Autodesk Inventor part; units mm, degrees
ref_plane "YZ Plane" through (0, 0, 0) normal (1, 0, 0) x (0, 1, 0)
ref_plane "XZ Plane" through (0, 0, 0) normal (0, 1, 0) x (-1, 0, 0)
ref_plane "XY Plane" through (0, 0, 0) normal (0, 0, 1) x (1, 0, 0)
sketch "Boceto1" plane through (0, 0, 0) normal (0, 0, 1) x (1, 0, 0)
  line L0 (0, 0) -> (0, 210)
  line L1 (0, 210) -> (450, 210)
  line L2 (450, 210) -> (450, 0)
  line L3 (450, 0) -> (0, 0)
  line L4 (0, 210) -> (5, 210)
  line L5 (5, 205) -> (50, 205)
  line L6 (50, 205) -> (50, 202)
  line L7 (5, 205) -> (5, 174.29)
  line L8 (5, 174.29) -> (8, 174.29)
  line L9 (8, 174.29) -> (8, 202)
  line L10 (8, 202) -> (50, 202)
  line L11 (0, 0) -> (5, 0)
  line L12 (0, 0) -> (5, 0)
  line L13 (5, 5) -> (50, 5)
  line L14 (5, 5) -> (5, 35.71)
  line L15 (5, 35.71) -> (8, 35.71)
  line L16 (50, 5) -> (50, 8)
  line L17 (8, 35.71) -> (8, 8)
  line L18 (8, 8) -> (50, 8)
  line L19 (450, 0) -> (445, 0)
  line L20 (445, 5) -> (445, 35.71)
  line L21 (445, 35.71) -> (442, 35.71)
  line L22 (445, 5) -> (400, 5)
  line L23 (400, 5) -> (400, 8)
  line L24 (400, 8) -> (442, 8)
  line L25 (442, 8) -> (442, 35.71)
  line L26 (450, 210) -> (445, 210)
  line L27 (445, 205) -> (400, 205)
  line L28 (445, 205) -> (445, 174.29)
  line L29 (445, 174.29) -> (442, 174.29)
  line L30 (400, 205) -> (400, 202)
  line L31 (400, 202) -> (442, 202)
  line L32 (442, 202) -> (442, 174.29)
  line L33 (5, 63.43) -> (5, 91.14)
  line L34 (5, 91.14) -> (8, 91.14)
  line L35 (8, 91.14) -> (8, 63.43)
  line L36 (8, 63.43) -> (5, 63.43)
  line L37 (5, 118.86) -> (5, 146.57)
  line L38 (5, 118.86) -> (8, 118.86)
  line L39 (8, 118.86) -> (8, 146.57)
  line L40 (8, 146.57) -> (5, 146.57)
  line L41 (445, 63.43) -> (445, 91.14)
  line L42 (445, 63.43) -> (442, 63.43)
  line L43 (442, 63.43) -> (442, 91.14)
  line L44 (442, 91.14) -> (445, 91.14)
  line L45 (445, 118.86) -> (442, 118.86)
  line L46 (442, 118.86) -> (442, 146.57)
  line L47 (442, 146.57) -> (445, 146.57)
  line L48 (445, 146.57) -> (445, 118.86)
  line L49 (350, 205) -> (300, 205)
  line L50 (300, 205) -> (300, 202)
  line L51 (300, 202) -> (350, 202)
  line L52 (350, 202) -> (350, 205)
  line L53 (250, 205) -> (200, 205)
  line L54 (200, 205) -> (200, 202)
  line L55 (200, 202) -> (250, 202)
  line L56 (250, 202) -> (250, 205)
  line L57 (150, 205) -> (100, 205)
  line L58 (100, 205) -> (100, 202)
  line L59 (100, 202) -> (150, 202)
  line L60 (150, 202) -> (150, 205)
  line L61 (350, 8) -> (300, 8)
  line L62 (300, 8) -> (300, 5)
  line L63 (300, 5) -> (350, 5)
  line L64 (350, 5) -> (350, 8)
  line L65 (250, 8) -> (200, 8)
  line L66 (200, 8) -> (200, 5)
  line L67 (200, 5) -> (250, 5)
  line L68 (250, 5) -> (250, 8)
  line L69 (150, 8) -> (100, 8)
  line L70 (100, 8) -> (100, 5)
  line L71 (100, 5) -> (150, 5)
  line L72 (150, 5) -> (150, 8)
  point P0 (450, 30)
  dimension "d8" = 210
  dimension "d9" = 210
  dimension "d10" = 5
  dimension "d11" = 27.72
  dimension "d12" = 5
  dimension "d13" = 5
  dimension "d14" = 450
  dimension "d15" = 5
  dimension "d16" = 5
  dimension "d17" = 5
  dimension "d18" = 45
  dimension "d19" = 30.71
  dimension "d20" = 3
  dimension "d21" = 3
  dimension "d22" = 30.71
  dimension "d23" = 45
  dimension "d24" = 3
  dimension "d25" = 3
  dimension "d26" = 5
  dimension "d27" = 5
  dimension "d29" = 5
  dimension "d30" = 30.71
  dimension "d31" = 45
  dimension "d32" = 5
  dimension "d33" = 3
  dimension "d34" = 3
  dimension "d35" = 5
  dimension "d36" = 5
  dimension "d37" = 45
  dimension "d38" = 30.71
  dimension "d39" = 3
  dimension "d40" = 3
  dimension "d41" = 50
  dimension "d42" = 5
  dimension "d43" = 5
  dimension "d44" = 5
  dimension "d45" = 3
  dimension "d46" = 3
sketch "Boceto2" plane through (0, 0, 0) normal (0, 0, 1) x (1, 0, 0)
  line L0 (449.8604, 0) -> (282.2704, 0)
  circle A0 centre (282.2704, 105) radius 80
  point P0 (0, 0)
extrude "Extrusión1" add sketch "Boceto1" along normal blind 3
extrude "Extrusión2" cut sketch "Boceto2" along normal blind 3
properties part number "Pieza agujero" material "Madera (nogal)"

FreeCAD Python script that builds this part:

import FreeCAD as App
import Part
import Sketcher
Q = App.Units.Quantity

doc = App.newDocument("Part")
body = doc.addObject("PartDesign::Body", "Body")

# Sketch on XY plane
sketch1 = doc.addObject("Sketcher::SketchObject", "Sketch")
body.addObject(sketch1)
sketch1.AttachmentSupport = (doc.XY_Plane, [""])
sketch1.MapMode = "FlatFace"
sketch1.addGeometry(Part.LineSegment(App.Vector(0, 210, 0), App.Vector(0, 0, 0)), False)
sketch1.addGeometry(Part.LineSegment(App.Vector(0, 0, 0), App.Vector(450, 0, 0)), False)
sketch1.addGeometry(Part.LineSegment(App.Vector(450, 0, 0), App.Vector(450, 210, 0)), False)
sketch1.addGeometry(Part.LineSegment(App.Vector(450, 210, 0), App.Vector(0, 210, 0)), False)
sketch1.addGeometry(Part.LineSegment(App.Vector(50, 5, 0), App.Vector(5, 5, 0)), False)
sketch1.addGeometry(Part.LineSegment(App.Vector(5, 5, 0), App.Vector(5, 35.7, 0)), False)
sketch1.addGeometry(Part.LineSegment(App.Vector(5, 35.7, 0), App.Vector(8, 35.7, 0)), False)
sketch1.addGeometry(Part.LineSegment(App.Vector(8, 35.7, 0), App.Vector(8, 8, 0)), False)
sketch1.addGeometry(Part.LineSegment(App.Vector(8, 8, 0), App.Vector(50, 8, 0)), False)
sketch1.addGeometry(Part.LineSegment(App.Vector(50, 8, 0), App.Vector(50, 5, 0)), False)
sketch1.addGeometry(Part.LineSegment(App.Vector(100, 8, 0), App.Vector(150, 8, 0)), False)
sketch1.addGeometry(Part.LineSegment(App.Vector(150, 8, 0), App.Vector(150, 5, 0)), False)
sketch1.addGeometry(Part.LineSegment(App.Vector(150, 5, 0), App.Vector(100, 5, 0)), False)
sketch1.addGeometry(Part.LineSegment(App.Vector(100, 5, 0), App.Vector(100, 8, 0)), False)
sketch1.addGeometry(Part.LineSegment(App.Vector(8, 63.4, 0), App.Vector(5, 63.4, 0)), False)
sketch1.addGeometry(Part.LineSegment(App.Vector(5, 63.4, 0), App.Vector(5, 91.1, 0)), False)
sketch1.addGeometry(Part.LineSegment(App.Vector(5, 91.1, 0), App.Vector(8, 91.1, 0)), False)
sketch1.addGeometry(Part.LineSegment(App.Vector(8, 91.1, 0), App.Vector(8, 63.4, 0)), False)
sketch1.addGeometry(Part.LineSegment(App.Vector(200, 8, 0), App.Vector(250, 8, 0)), False)
sketch1.addGeometry(Part.LineSegment(App.Vector(250, 8, 0), App.Vector(250, 5, 0)), False)
sketch1.addGeometry(Part.LineSegment(App.Vector(250, 5, 0), App.Vector(200, 5, 0)), False)
sketch1.addGeometry(Part.LineSegment(App.Vector(200, 5, 0), App.Vector(200, 8, 0)), False)
sketch1.addGeometry(Part.LineSegment(App.Vector(300, 8, 0), App.Vector(350, 8, 0)), False)
sketch1.addGeometry(Part.LineSegment(App.Vector(350, 8, 0), App.Vector(350, 5, 0)), False)
sketch1.addGeometry(Part.LineSegment(App.Vector(350, 5, 0), App.Vector(300, 5, 0)), False)
sketch1.addGeometry(Part.LineSegment(App.Vector(300, 5, 0), App.Vector(300, 8, 0)), False)
sketch1.addGeometry(Part.LineSegment(App.Vector(445, 35.7, 0), App.Vector(445, 5, 0)), False)
sketch1.addGeometry(Part.LineSegment(App.Vector(445, 5, 0), App.Vector(400, 5, 0)), False)
sketch1.addGeometry(Part.LineSegment(App.Vector(400, 5, 0), App.Vector(400, 8, 0)), False)
sketch1.addGeometry(Part.LineSegment(App.Vector(400, 8, 0), App.Vector(442, 8, 0)), False)
sketch1.addGeometry(Part.LineSegment(App.Vector(442, 8, 0), App.Vector(442, 35.7, 0)), False)
sketch1.addGeometry(Part.LineSegment(App.Vector(442, 35.7, 0), App.Vector(445, 35.7, 0)), False)
sketch1.addGeometry(Part.LineSegment(App.Vector(445, 91.1, 0), App.Vector(445, 63.4, 0)), False)
sketch1.addGeometry(Part.LineSegment(App.Vector(445, 63.4, 0), App.Vector(442, 63.4, 0)), False)
sketch1.addGeometry(Part.LineSegment(App.Vector(442, 63.4, 0), App.Vector(442, 91.1, 0)), False)
sketch1.addGeometry(Part.LineSegment(App.Vector(442, 91.1, 0), App.Vector(445, 91.1, 0)), False)
sketch1.addGeometry(Part.LineSegment(App.Vector(8, 118.9, 0), App.Vector(5, 118.9, 0)), False)
sketch1.addGeometry(Part.LineSegment(App.Vector(5, 118.9, 0), App.Vector(5, 146.6, 0)), False)
sketch1.addGeometry(Part.LineSegment(App.Vector(5, 146.6, 0), App.Vector(8, 146.6, 0)), False)
sketch1.addGeometry(Part.LineSegment(App.Vector(8, 146.6, 0), App.Vector(8, 118.9, 0)), False)
sketch1.addGeometry(Part.LineSegment(App.Vector(5, 174.3, 0), App.Vector(5, 205, 0)), False)
sketch1.addGeometry(Part.LineSegment(App.Vector(5, 205, 0), App.Vector(50, 205, 0)), False)
sketch1.addGeometry(Part.LineSegment(App.Vector(50, 205, 0), App.Vector(50, 202, 0)), False)
sketch1.addGeometry(Part.LineSegment(App.Vector(50, 202, 0), App.Vector(8, 202, 0)), False)
sketch1.addGeometry(Part.LineSegment(App.Vector(8, 202, 0), App.Vector(8, 174.3, 0)), False)
sketch1.addGeometry(Part.LineSegment(App.Vector(8, 174.3, 0), App.Vector(5, 174.3, 0)), False)
sketch1.addGeometry(Part.LineSegment(App.Vector(100, 205, 0), App.Vector(150, 205, 0)), False)
sketch1.addGeometry(Part.LineSegment(App.Vector(150, 205, 0), App.Vector(150, 202, 0)), False)
sketch1.addGeometry(Part.LineSegment(App.Vector(150, 202, 0), App.Vector(100, 202, 0)), False)
sketch1.addGeometry(Part.LineSegment(App.Vector(100, 202, 0), App.Vector(100, 205, 0)), False)
sketch1.addGeometry(Part.LineSegment(App.Vector(445, 146.6, 0), App.Vector(445, 118.9, 0)), False)
sketch1.addGeometry(Part.LineSegment(App.Vector(445, 118.9, 0), App.Vector(442, 118.9, 0)), False)
sketch1.addGeometry(Part.LineSegment(App.Vector(442, 118.9, 0), App.Vector(442, 146.6, 0)), False)
sketch1.addGeometry(Part.LineSegment(App.Vector(442, 146.6, 0), App.Vector(445, 146.6, 0)), False)
sketch1.addGeometry(Part.LineSegment(App.Vector(200, 205, 0), App.Vector(250, 205, 0)), False)
sketch1.addGeometry(Part.LineSegment(App.Vector(250, 205, 0), App.Vector(250, 202, 0)), False)
sketch1.addGeometry(Part.LineSegment(App.Vector(250, 202, 0), App.Vector(200, 202, 0)), False)
sketch1.addGeometry(Part.LineSegment(App.Vector(200, 202, 0), App.Vector(200, 205, 0)), False)
sketch1.addGeometry(Part.LineSegment(App.Vector(300, 205, 0), App.Vector(350, 205, 0)), False)
sketch1.addGeometry(Part.LineSegment(App.Vector(350, 205, 0), App.Vector(350, 202, 0)), False)
sketch1.addGeometry(Part.LineSegment(App.Vector(350, 202, 0), App.Vector(300, 202, 0)), False)
sketch1.addGeometry(Part.LineSegment(App.Vector(300, 202, 0), App.Vector(300, 205, 0)), False)
sketch1.addGeometry(Part.LineSegment(App.Vector(400, 205, 0), App.Vector(445, 205, 0)), False)
sketch1.addGeometry(Part.LineSegment(App.Vector(445, 205, 0), App.Vector(445, 174.3, 0)), False)
sketch1.addGeometry(Part.LineSegment(App.Vector(445, 174.3, 0), App.Vector(442, 174.3, 0)), False)
sketch1.addGeometry(Part.LineSegment(App.Vector(442, 174.3, 0), App.Vector(442, 202, 0)), False)
sketch1.addGeometry(Part.LineSegment(App.Vector(442, 202, 0), App.Vector(400, 202, 0)), False)
sketch1.addGeometry(Part.LineSegment(App.Vector(400, 202, 0), App.Vector(400, 205, 0)), False)
sketch1.addConstraint(Sketcher.Constraint("Coincident", 0, 2, 1, 1))
sketch1.addConstraint(Sketcher.Constraint("Coincident", 1, 2, 2, 1))
sketch1.addConstraint(Sketcher.Constraint("Coincident", 2, 2, 3, 1))
sketch1.addConstraint(Sketcher.Constraint("Coincident", 3, 2, 0, 1))
sketch1.addConstraint(Sketcher.Constraint("Coincident", 4, 2, 5, 1))
sketch1.addConstraint(Sketcher.Constraint("Coincident", 5, 2, 6, 1))
sketch1.addConstraint(Sketcher.Constraint("Coincident", 6, 2, 7, 1))
sketch1.addConstraint(Sketcher.Constraint("Coincident", 7, 2, 8, 1))
sketch1.addConstraint(Sketcher.Constraint("Coincident", 8, 2, 9, 1))
sketch1.addConstraint(Sketcher.Constraint("Coincident", 9, 2, 4, 1))
sketch1.addConstraint(Sketcher.Constraint("Coincident", 10, 2, 11, 1))
sketch1.addConstraint(Sketcher.Constraint("Coincident", 11, 2, 12, 1))
sketch1.addConstraint(Sketcher.Constraint("Coincident", 12, 2, 13, 1))
sketch1.addConstraint(Sketcher.Constraint("Coincident", 13, 2, 10, 1))
sketch1.addConstraint(Sketcher.Constraint("Coincident", 14, 2, 15, 1))
sketch1.addConstraint(Sketcher.Constraint("Coincident", 15, 2, 16, 1))
sketch1.addConstraint(Sketcher.Constraint("Coincident", 16, 2, 17, 1))
sketch1.addConstraint(Sketcher.Constraint("Coincident", 17, 2, 14, 1))
sketch1.addConstraint(Sketcher.Constraint("Coincident", 18, 2, 19, 1))
sketch1.addConstraint(Sketcher.Constraint("Coincident", 19, 2, 20, 1))
sketch1.addConstraint(Sketcher.Constraint("Coincident", 20, 2, 21, 1))
sketch1.addConstraint(Sketcher.Constraint("Coincident", 21, 2, 18, 1))
sketch1.addConstraint(Sketcher.Constraint("Coincident", 22, 2, 23, 1))
sketch1.addConstraint(Sketcher.Constraint("Coincident", 23, 2, 24, 1))
sketch1.addConstraint(Sketcher.Constraint("Coincident", 24, 2, 25, 1))
sketch1.addConstraint(Sketcher.Constraint("Coincident", 25, 2, 22, 1))
sketch1.addConstraint(Sketcher.Constraint("Coincident", 26, 2, 27, 1))
sketch1.addConstraint(Sketcher.Constraint("Coincident", 27, 2, 28, 1))
sketch1.addConstraint(Sketcher.Constraint("Coincident", 28, 2, 29, 1))
sketch1.addConstraint(Sketcher.Constraint("Coincident", 29, 2, 30, 1))
sketch1.addConstraint(Sketcher.Constraint("Coincident", 30, 2, 31, 1))
sketch1.addConstraint(Sketcher.Constraint("Coincident", 31, 2, 26, 1))
sketch1.addConstraint(Sketcher.Constraint("Coincident", 32, 2, 33, 1))
sketch1.addConstraint(Sketcher.Constraint("Coincident", 33, 2, 34, 1))
sketch1.addConstraint(Sketcher.Constraint("Coincident", 34, 2, 35, 1))
sketch1.addConstraint(Sketcher.Constraint("Coincident", 35, 2, 32, 1))
sketch1.addConstraint(Sketcher.Constraint("Coincident", 36, 2, 37, 1))
sketch1.addConstraint(Sketcher.Constraint("Coincident", 37, 2, 38, 1))
sketch1.addConstraint(Sketcher.Constraint("Coincident", 38, 2, 39, 1))
sketch1.addConstraint(Sketcher.Constraint("Coincident", 39, 2, 36, 1))
sketch1.addConstraint(Sketcher.Constraint("Coincident", 40, 2, 41, 1))
sketch1.addConstraint(Sketcher.Constraint("Coincident", 41, 2, 42, 1))
sketch1.addConstraint(Sketcher.Constraint("Coincident", 42, 2, 43, 1))
sketch1.addConstraint(Sketcher.Constraint("Coincident", 43, 2, 44, 1))
sketch1.addConstraint(Sketcher.Constraint("Coincident", 44, 2, 45, 1))
sketch1.addConstraint(Sketcher.Constraint("Coincident", 45, 2, 40, 1))
sketch1.addConstraint(Sketcher.Constraint("Coincident", 46, 2, 47, 1))
sketch1.addConstraint(Sketcher.Constraint("Coincident", 47, 2, 48, 1))
sketch1.addConstraint(Sketcher.Constraint("Coincident", 48, 2, 49, 1))
sketch1.addConstraint(Sketcher.Constraint("Coincident", 49, 2, 46, 1))
sketch1.addConstraint(Sketcher.Constraint("Coincident", 50, 2, 51, 1))
sketch1.addConstraint(Sketcher.Constraint("Coincident", 51, 2, 52, 1))
sketch1.addConstraint(Sketcher.Constraint("Coincident", 52, 2, 53, 1))
sketch1.addConstraint(Sketcher.Constraint("Coincident", 53, 2, 50, 1))
sketch1.addConstraint(Sketcher.Constraint("Coincident", 54, 2, 55, 1))
sketch1.addConstraint(Sketcher.Constraint("Coincident", 55, 2, 56, 1))
sketch1.addConstraint(Sketcher.Constraint("Coincident", 56, 2, 57, 1))
sketch1.addConstraint(Sketcher.Constraint("Coincident", 57, 2, 54, 1))
sketch1.addConstraint(Sketcher.Constraint("Coincident", 58, 2, 59, 1))
sketch1.addConstraint(Sketcher.Constraint("Coincident", 59, 2, 60, 1))
sketch1.addConstraint(Sketcher.Constraint("Coincident", 60, 2, 61, 1))
sketch1.addConstraint(Sketcher.Constraint("Coincident", 61, 2, 58, 1))
sketch1.addConstraint(Sketcher.Constraint("Coincident", 62, 2, 63, 1))
sketch1.addConstraint(Sketcher.Constraint("Coincident", 63, 2, 64, 1))
sketch1.addConstraint(Sketcher.Constraint("Coincident", 64, 2, 65, 1))
sketch1.addConstraint(Sketcher.Constraint("Coincident", 65, 2, 66, 1))
sketch1.addConstraint(Sketcher.Constraint("Coincident", 66, 2, 67, 1))
sketch1.addConstraint(Sketcher.Constraint("Coincident", 67, 2, 62, 1))
sketch1.addConstraint(Sketcher.Constraint("Vertical", 0))
sketch1.addConstraint(Sketcher.Constraint("Horizontal", 1))
sketch1.addConstraint(Sketcher.Constraint("Vertical", 2))
sketch1.addConstraint(Sketcher.Constraint("Horizontal", 3))
sketch1.addConstraint(Sketcher.Constraint("Horizontal", 4))
sketch1.addConstraint(Sketcher.Constraint("Vertical", 5))
sketch1.addConstraint(Sketcher.Constraint("Horizontal", 6))
sketch1.addConstraint(Sketcher.Constraint("Vertical", 7))
sketch1.addConstraint(Sketcher.Constraint("Horizontal", 8))
sketch1.addConstraint(Sketcher.Constraint("Vertical", 9))
sketch1.addConstraint(Sketcher.Constraint("Horizontal", 10))
sketch1.addConstraint(Sketcher.Constraint("Vertical", 11))
sketch1.addConstraint(Sketcher.Constraint("Horizontal", 12))
sketch1.addConstraint(Sketcher.Constraint("Vertical", 13))
sketch1.addConstraint(Sketcher.Constraint("Horizontal", 14))
sketch1.addConstraint(Sketcher.Constraint("Vertical", 15))
sketch1.addConstraint(Sketcher.Constraint("Horizontal", 16))
sketch1.addConstraint(Sketcher.Constraint("Vertical", 17))
sketch1.addConstraint(Sketcher.Constraint("Horizontal", 18))
sketch1.addConstraint(Sketcher.Constraint("Vertical", 19))
sketch1.addConstraint(Sketcher.Constraint("Horizontal", 20))
sketch1.addConstraint(Sketcher.Constraint("Vertical", 21))
sketch1.addConstraint(Sketcher.Constraint("Horizontal", 22))
sketch1.addConstraint(Sketcher.Constraint("Vertical", 23))
sketch1.addConstraint(Sketcher.Constraint("Horizontal", 24))
sketch1.addConstraint(Sketcher.Constraint("Vertical", 25))
sketch1.addConstraint(Sketcher.Constraint("Vertical", 26))
sketch1.addConstraint(Sketcher.Constraint("Horizontal", 27))
sketch1.addConstraint(Sketcher.Constraint("Vertical", 28))
sketch1.addConstraint(Sketcher.Constraint("Horizontal", 29))
sketch1.addConstraint(Sketcher.Constraint("Vertical", 30))
sketch1.addConstraint(Sketcher.Constraint("Horizontal", 31))
sketch1.addConstraint(Sketcher.Constraint("Vertical", 32))
sketch1.addConstraint(Sketcher.Constraint("Horizontal", 33))
sketch1.addConstraint(Sketcher.Constraint("Vertical", 34))
sketch1.addConstraint(Sketcher.Constraint("Horizontal", 35))
sketch1.addConstraint(Sketcher.Constraint("Horizontal", 36))
sketch1.addConstraint(Sketcher.Constraint("Vertical", 37))
sketch1.addConstraint(Sketcher.Constraint("Horizontal", 38))
sketch1.addConstraint(Sketcher.Constraint("Vertical", 39))
sketch1.addConstraint(Sketcher.Constraint("Vertical", 40))
sketch1.addConstraint(Sketcher.Constraint("Horizontal", 41))
sketch1.addConstraint(Sketcher.Constraint("Vertical", 42))
sketch1.addConstraint(Sketcher.Constraint("Horizontal", 43))
sketch1.addConstraint(Sketcher.Constraint("Vertical", 44))
sketch1.addConstraint(Sketcher.Constraint("Horizontal", 45))
sketch1.addConstraint(Sketcher.Constraint("Horizontal", 46))
sketch1.addConstraint(Sketcher.Constraint("Vertical", 47))
sketch1.addConstraint(Sketcher.Constraint("Horizontal", 48))
sketch1.addConstraint(Sketcher.Constraint("Vertical", 49))
sketch1.addConstraint(Sketcher.Constraint("Vertical", 50))
sketch1.addConstraint(Sketcher.Constraint("Horizontal", 51))
sketch1.addConstraint(Sketcher.Constraint("Vertical", 52))
sketch1.addConstraint(Sketcher.Constraint("Horizontal", 53))
sketch1.addConstraint(Sketcher.Constraint("Horizontal", 54))
sketch1.addConstraint(Sketcher.Constraint("Vertical", 55))
sketch1.addConstraint(Sketcher.Constraint("Horizontal", 56))
sketch1.addConstraint(Sketcher.Constraint("Vertical", 57))
sketch1.addConstraint(Sketcher.Constraint("Horizontal", 58))
sketch1.addConstraint(Sketcher.Constraint("Vertical", 59))
sketch1.addConstraint(Sketcher.Constraint("Horizontal", 60))
sketch1.addConstraint(Sketcher.Constraint("Vertical", 61))
sketch1.addConstraint(Sketcher.Constraint("Horizontal", 62))
sketch1.addConstraint(Sketcher.Constraint("Vertical", 63))
sketch1.addConstraint(Sketcher.Constraint("Horizontal", 64))
sketch1.addConstraint(Sketcher.Constraint("Vertical", 65))
sketch1.addConstraint(Sketcher.Constraint("Horizontal", 66))
sketch1.addConstraint(Sketcher.Constraint("Vertical", 67))
sketch1.addConstraint(Sketcher.Constraint("Coincident", 0, 2, -1, 1))
sketch1.addConstraint(Sketcher.Constraint("Horizontal", 8, 2, 10, 2))
sketch1.addConstraint(Sketcher.Constraint("Horizontal", 9, 2, 11, 2))
sketch1.addConstraint(Sketcher.Constraint("Horizontal", 13, 2, 18, 2))
sketch1.addConstraint(Sketcher.Constraint("Horizontal", 12, 2, 19, 2))
sketch1.addConstraint(Sketcher.Constraint("Horizontal", 21, 2, 22, 2))
sketch1.addConstraint(Sketcher.Constraint("Horizontal", 20, 2, 23, 2))
sketch1.addConstraint(Sketcher.Constraint("Horizontal", 24, 2, 26, 2))
sketch1.addConstraint(Sketcher.Constraint("Horizontal", 25, 2, 28, 2))
sketch1.addConstraint(Sketcher.Constraint("Horizontal", 6, 2, 30, 2))
sketch1.addConstraint(Sketcher.Constraint("Horizontal", 17, 2, 32, 2))
sketch1.addConstraint(Sketcher.Constraint("Horizontal", 16, 2, 34, 2))
sketch1.addConstraint(Sketcher.Constraint("Horizontal", 41, 2, 46, 2))
sketch1.addConstraint(Sketcher.Constraint("Horizontal", 43, 2, 47, 2))
sketch1.addConstraint(Sketcher.Constraint("Horizontal", 39, 2, 50, 2))
sketch1.addConstraint(Sketcher.Constraint("Horizontal", 38, 2, 52, 2))
sketch1.addConstraint(Sketcher.Constraint("Horizontal", 49, 2, 54, 2))
sketch1.addConstraint(Sketcher.Constraint("Horizontal", 48, 2, 55, 2))
sketch1.addConstraint(Sketcher.Constraint("Horizontal", 57, 2, 58, 2))
sketch1.addConstraint(Sketcher.Constraint("Horizontal", 56, 2, 59, 2))
sketch1.addConstraint(Sketcher.Constraint("Horizontal", 61, 2, 62, 2))
sketch1.addConstraint(Sketcher.Constraint("Horizontal", 45, 2, 63, 2))
sketch1.addConstraint(Sketcher.Constraint("Horizontal", 60, 2, 65, 2))
sketch1.addConstraint(Sketcher.Constraint("Vertical", 5, 2, 14, 2))
sketch1.addConstraint(Sketcher.Constraint("Vertical", 7, 2, 16, 2))
sketch1.addConstraint(Sketcher.Constraint("Vertical", 31, 2, 32, 2))
sketch1.addConstraint(Sketcher.Constraint("Vertical", 30, 2, 33, 2))
sketch1.addConstraint(Sketcher.Constraint("Vertical", 15, 2, 36, 2))
sketch1.addConstraint(Sketcher.Constraint("Vertical", 17, 2, 38, 2))
sketch1.addConstraint(Sketcher.Constraint("Vertical", 37, 2, 40, 2))
sketch1.addConstraint(Sketcher.Constraint("Vertical", 9, 2, 41, 2))
sketch1.addConstraint(Sketcher.Constraint("Vertical", 39, 2, 43, 2))
sketch1.addConstraint(Sketcher.Constraint("Vertical", 11, 2, 46, 2))
sketch1.addConstraint(Sketcher.Constraint("Vertical", 13, 2, 48, 2))
sketch1.addConstraint(Sketcher.Constraint("Vertical", 35, 2, 50, 2))
sketch1.addConstraint(Sketcher.Constraint("Vertical", 34, 2, 51, 2))
sketch1.addConstraint(Sketcher.Constraint("Vertical", 19, 2, 54, 2))
sketch1.addConstraint(Sketcher.Constraint("Vertical", 21, 2, 56, 2))
sketch1.addConstraint(Sketcher.Constraint("Vertical", 23, 2, 58, 2))
sketch1.addConstraint(Sketcher.Constraint("Vertical", 25, 2, 60, 2))
sketch1.addConstraint(Sketcher.Constraint("Vertical", 53, 2, 62, 2))
sketch1.addConstraint(Sketcher.Constraint("Vertical", 52, 2, 64, 2))
sketch1.addConstraint(Sketcher.Constraint("Vertical", 28, 2, 66, 2))
sketch1.addConstraint(Sketcher.Constraint("Equal", 12, 18))
sketch1.addConstraint(Sketcher.Constraint("Equal", 20, 22))
sketch1.addConstraint(Sketcher.Constraint("Equal", 4, 27))
sketch1.addConstraint(Sketcher.Constraint("Equal", 8, 29))
sketch1.addConstraint(Sketcher.Constraint("Equal", 64, 9))
sketch1.addConstraint(Sketcher.Constraint("Equal", 7, 15))
sketch1.addConstraint(Sketcher.Constraint("Equal", 34, 37))
sketch1.addConstraint(Sketcher.Constraint("Equal", 26, 40))
sketch1.addConstraint(Sketcher.Constraint("Equal", 28, 42))
sketch1.addConstraint(Sketcher.Constraint("DistanceX", 1, 1, 1, 2, Q("450 mm")))
sketch1.addConstraint(Sketcher.Constraint("DistanceX", 4, 2, 4, 1, Q("45 mm")))
sketch1.addConstraint(Sketcher.Constraint("DistanceX", 6, 1, 6, 2, Q("3 mm")))
sketch1.addConstraint(Sketcher.Constraint("DistanceX", 10, 1, 10, 2, Q("50 mm")))
sketch1.addConstraint(Sketcher.Constraint("DistanceY", 0, 2, 0, 1, Q("210 mm")))
sketch1.addConstraint(Sketcher.Constraint("DistanceX", -1, 1, 4, 2, Q("5 mm")))
sketch1.addConstraint(Sketcher.Constraint("DistanceY", -1, 1, 4, 2, Q("5 mm")))
sketch1.addConstraint(Sketcher.Constraint("DistanceY", 5, 1, 5, 2, Q("30.71 mm")))
sketch1.addConstraint(Sketcher.Constraint("DistanceX", -1, 1, 10, 2, Q("150 mm")))
sketch1.addConstraint(Sketcher.Constraint("DistanceX", -1, 1, 18, 2, Q("250 mm")))
sketch1.addConstraint(Sketcher.Constraint("DistanceX", -1, 1, 22, 2, Q("350 mm")))
sketch1.addConstraint(Sketcher.Constraint("DistanceX", -1, 1, 26, 2, Q("445 mm")))
sketch1.addConstraint(Sketcher.Constraint("DistanceY", -1, 1, 40, 2, Q("205 mm")))
sketch1.addConstraint(Sketcher.Constraint("DistanceY", -1, 1, 14, 2, Q("63.43 mm")))
sketch1.addConstraint(Sketcher.Constraint("DistanceY", -1, 1, 36, 2, Q("118.86 mm")))
pad1 = doc.addObject("PartDesign::Pad", "Pad")
body.addObject(pad1)
pad1.Profile = sketch1
pad1.Length = 3

# Sketch on XY plane
sketch2 = doc.addObject("Sketcher::SketchObject", "Sketch001")
body.addObject(sketch2)
sketch2.AttachmentSupport = (doc.XY_Plane, [""])
sketch2.MapMode = "FlatFace"
sketch2.addGeometry(Part.Circle(App.Vector(282, 105, 0), App.Vector(0, 0, 1), 80), False)
sketch2.addConstraint(Sketcher.Constraint("Diameter", 0, Q("160 mm")))
sketch2.addConstraint(Sketcher.Constraint("DistanceY", -1, 1, 0, 3, Q("105 mm")))
sketch2.addConstraint(Sketcher.Constraint("DistanceX", -1, 1, 0, 3, Q("282.2704 mm")))
pocket1 = doc.addObject("PartDesign::Pocket", "Pocket")
body.addObject(pocket1)
pocket1.Profile = sketch2
pocket1.Length = 3
pocket1.Reversed = True

doc.recompute()
